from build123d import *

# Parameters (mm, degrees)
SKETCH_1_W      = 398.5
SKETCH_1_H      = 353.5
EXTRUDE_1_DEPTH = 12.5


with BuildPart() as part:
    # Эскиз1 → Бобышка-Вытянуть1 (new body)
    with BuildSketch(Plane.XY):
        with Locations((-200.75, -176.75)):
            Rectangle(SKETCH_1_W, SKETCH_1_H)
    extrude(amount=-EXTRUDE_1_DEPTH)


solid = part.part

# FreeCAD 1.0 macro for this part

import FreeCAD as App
import Part
import Sketcher

V = App.Vector
Q = App.Units.Quantity


def add_polygon(sketch, points):
    """Adds a closed chain of lines whose ends are joined by coincident constraints."""
    first, n = sketch.GeometryCount, len(points)
    for a, b in zip(points, points[1:] + points[:1]):
        sketch.addGeometry(Part.LineSegment(App.Vector(*a, 0), App.Vector(*b, 0)), False)
    for i in range(n):
        sketch.addConstraint(Sketcher.Constraint("Coincident", first + i, 2, first + (i + 1) % n, 1))

doc = App.newDocument("Part")
body = doc.addObject("PartDesign::Body", "Body")

sketch1 = body.newObject("Sketcher::SketchObject", "Sketch")
sketch1.AttachmentSupport = (doc.getObject("XY_Plane"), [""])
sketch1.MapMode = "FlatFace"
add_polygon(sketch1, [(-400, 0), (-400, -353.5), (-1.5, -353.5), (-1.5, 0)])
sketch1.addConstraint([
    Sketcher.Constraint("Vertical", 0),
    Sketcher.Constraint("Horizontal", 1),
    Sketcher.Constraint("Vertical", 2),
    Sketcher.Constraint("Horizontal", 3),
    Sketcher.Constraint("PointOnObject", 2, 2, -1),
    Sketcher.Constraint("DistanceX", 1, 1, 1, 2, Q("398.5 mm")),
    Sketcher.Constraint("DistanceY", 0, 2, 0, 1, Q("353.5 mm")),
    Sketcher.Constraint("DistanceX", 0, 2, -1, 1, Q("400 mm")),
])
pad1 = body.newObject("PartDesign::Pad", "Pad")
pad1.Profile = sketch1
pad1.Length = 12.5
pad1.Reversed = True

doc.recompute()
